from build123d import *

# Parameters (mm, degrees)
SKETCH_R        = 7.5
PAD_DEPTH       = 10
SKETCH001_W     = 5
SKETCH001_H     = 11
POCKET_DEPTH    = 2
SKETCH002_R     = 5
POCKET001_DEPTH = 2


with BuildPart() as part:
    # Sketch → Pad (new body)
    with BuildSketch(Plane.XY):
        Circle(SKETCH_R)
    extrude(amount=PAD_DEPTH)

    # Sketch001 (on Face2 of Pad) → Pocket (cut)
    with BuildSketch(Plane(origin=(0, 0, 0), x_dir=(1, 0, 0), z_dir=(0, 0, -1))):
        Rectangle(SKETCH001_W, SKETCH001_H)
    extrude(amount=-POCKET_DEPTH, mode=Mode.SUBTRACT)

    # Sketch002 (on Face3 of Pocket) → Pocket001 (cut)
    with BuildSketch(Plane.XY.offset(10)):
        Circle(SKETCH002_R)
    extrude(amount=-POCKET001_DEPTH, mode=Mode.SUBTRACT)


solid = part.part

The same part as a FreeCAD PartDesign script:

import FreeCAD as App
import Part
import Sketcher

V = App.Vector
Q = App.Units.Quantity

doc = App.newDocument("Part")
params = doc.addObject("Spreadsheet::Sheet", "Params")
for row, (alias, value) in enumerate([
    ("sketch1_diameter", "15 mm"),
    ("pad1_length", "10 mm"),
    ("sketch2_width", "5 mm"),
    ("sketch2_height", "11 mm"),
    ("pocket1_length", "2 mm"),
    ("sketch3_diameter", "10 mm"),
    ("pocket2_length", "2 mm"),
], start=1):
    params.set(f"A{row}", alias)
    params.set(f"B{row}", "=" + value)
    params.setAlias(f"B{row}", alias)

body = doc.addObject("PartDesign::Body", "Body")

# Sketch on XY plane
sketch1 = doc.addObject("Sketcher::SketchObject", "Sketch")
body.addObject(sketch1)
sketch1.AttachmentSupport = (doc.XY_Plane, [""])
sketch1.MapMode = "FlatFace"
sketch1.addGeometry(Part.Circle(V(0, 0, 0), V(0, 0, 1), 7.5), False)
sketch1.addConstraint([
    Sketcher.Constraint("Coincident", 0, 3, -1, 1),
    Sketcher.Constraint("Diameter", 0, Q("15 mm")),
])
sketch1.setExpression("Constraints[1]", "Params.sketch1_diameter")
pad1 = doc.addObject("PartDesign::Pad", "Pad")
body.addObject(pad1)
pad1.Profile = sketch1
pad1.setExpression("Length", "Params.pad1_length")

# Sketch on XY plane
sketch2 = doc.addObject("Sketcher::SketchObject", "Sketch001")
body.addObject(sketch2)
sketch2.AttachmentSupport = (doc.XY_Plane, [""])
sketch2.MapMode = "FlatFace"
sketch2.addGeometry([
    Part.LineSegment(V(-2.5, -5.5, 0), V(-2.5, 5.5, 0)),
    Part.LineSegment(V(-2.5, 5.5, 0), V(2.5, 5.5, 0)),
    Part.LineSegment(V(2.5, 5.5, 0), V(2.5, -5.5, 0)),
    Part.LineSegment(V(2.5, -5.5, 0), V(-2.5, -5.5, 0)),
], False)
sketch2.addConstraint([
    Sketcher.Constraint("Coincident", 0, 2, 1, 1),
    Sketcher.Constraint("Coincident", 1, 2, 2, 1),
    Sketcher.Constraint("Coincident", 2, 2, 3, 1),
    Sketcher.Constraint("Coincident", 3, 2, 0, 1),
    Sketcher.Constraint("Vertical", 0),
    Sketcher.Constraint("Horizontal", 1),
    Sketcher.Constraint("Vertical", 2),
    Sketcher.Constraint("Horizontal", 3),
    Sketcher.Constraint("Symmetric", 0, 2, 2, 2, -1, 1),
    Sketcher.Constraint("DistanceX", 1, 1, 1, 2, Q("5 mm")),
    Sketcher.Constraint("DistanceY", 0, 1, 0, 2, Q("11 mm")),
])
sketch2.setExpression("Constraints[9]", "Params.sketch2_width")
sketch2.setExpression("Constraints[10]", "Params.sketch2_height")
pocket1 = doc.addObject("PartDesign::Pocket", "Pocket")
body.addObject(pocket1)
pocket1.Profile = sketch2
pocket1.setExpression("Length", "Params.pocket1_length")
pocket1.Reversed = True

# Sketch on XY plane
sketch3 = doc.addObject("Sketcher::SketchObject", "Sketch002")
body.addObject(sketch3)
sketch3.AttachmentSupport = (doc.XY_Plane, [""])
sketch3.MapMode = "FlatFace"
sketch3.AttachmentOffset = App.Placement(V(0, 0, 10), App.Rotation())
sketch3.addGeometry(Part.Circle(V(0, 0, 0), V(0, 0, 1), 5), False)
sketch3.addConstraint([
    Sketcher.Constraint("Coincident", 0, 3, -1, 1),
    Sketcher.Constraint("Diameter", 0, Q("10 mm")),
])
sketch3.setExpression("Constraints[1]", "Params.sketch3_diameter")
pocket2 = doc.addObject("PartDesign::Pocket", "Pocket001")
body.addObject(pocket2)
pocket2.Profile = sketch3
pocket2.setExpression("Length", "Params.pocket2_length")

doc.recompute()
